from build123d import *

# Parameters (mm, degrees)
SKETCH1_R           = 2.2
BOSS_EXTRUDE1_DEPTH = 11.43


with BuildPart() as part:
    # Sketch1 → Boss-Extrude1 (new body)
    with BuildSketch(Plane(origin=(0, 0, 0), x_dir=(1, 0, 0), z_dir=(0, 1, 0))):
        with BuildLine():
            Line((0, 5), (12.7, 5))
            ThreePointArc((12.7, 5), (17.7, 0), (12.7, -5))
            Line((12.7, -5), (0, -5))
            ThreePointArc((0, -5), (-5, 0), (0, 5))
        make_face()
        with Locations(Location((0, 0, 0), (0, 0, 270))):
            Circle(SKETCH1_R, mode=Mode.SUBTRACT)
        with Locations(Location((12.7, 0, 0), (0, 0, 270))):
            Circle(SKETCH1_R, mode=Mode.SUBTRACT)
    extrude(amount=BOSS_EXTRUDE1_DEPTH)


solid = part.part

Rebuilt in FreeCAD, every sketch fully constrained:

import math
import FreeCAD as App
import Part
import Sketcher
from FreeCAD import Vector
Q = App.Units.Quantity

doc = App.newDocument("Part")
body = doc.addObject("PartDesign::Body", "Body")

sketch1 = doc.addObject("Sketcher::SketchObject", "Sketch")
body.addObject(sketch1)
sketch1.AttachmentSupport = (doc.XZ_Plane, [""])
sketch1.MapMode = "FlatFace"
sketch1.addGeometry([
    Part.LineSegment(Vector(12.7, -5, 0), Vector(0, -5, 0)),
    Part.ArcOfCircle(Part.Circle(Vector(0, 0, 0), Vector(0, 0, 1), 5), math.radians(90), math.radians(270)),
    Part.LineSegment(Vector(0, 5, 0), Vector(12.7, 5, 0)),
    Part.ArcOfCircle(Part.Circle(Vector(12.7, 0, 0), Vector(0, 0, 1), 5), math.radians(-90), math.radians(90)),
    Part.Circle(Vector(12.7, 0, 0), Vector(0, 0, 1), 2.2),
    Part.Circle(Vector(0, 0, 0), Vector(0, 0, 1), 2.2),
], False)
sketch1.addConstraint([
    Sketcher.Constraint("Tangent", 0, 2, 1, 2),
    Sketcher.Constraint("Tangent", 1, 1, 2, 1),
    Sketcher.Constraint("Tangent", 2, 2, 3, 2),
    Sketcher.Constraint("Tangent", 3, 1, 0, 1),
    Sketcher.Constraint("Horizontal", 0),
    Sketcher.Constraint("Horizontal", 2),
    Sketcher.Constraint("Coincident", 1, 3, -1, 1),
    Sketcher.Constraint("Coincident", 5, 3, -1, 1),
    Sketcher.Constraint("Coincident", 4, 3, 3, 3),
    Sketcher.Constraint("Equal", 4, 5),
    Sketcher.Constraint("Radius", 1, Q("5 mm")),
    Sketcher.Constraint("Diameter", 4, Q("4.4 mm")),
    Sketcher.Constraint("DistanceX", 0, 2, 0, 1, Q("12.7 mm")),
])
pad1 = doc.addObject("PartDesign::Pad", "Pad")
body.addObject(pad1)
pad1.Profile = sketch1
pad1.Length = 11.43
pad1.Reversed = True

doc.recompute()
